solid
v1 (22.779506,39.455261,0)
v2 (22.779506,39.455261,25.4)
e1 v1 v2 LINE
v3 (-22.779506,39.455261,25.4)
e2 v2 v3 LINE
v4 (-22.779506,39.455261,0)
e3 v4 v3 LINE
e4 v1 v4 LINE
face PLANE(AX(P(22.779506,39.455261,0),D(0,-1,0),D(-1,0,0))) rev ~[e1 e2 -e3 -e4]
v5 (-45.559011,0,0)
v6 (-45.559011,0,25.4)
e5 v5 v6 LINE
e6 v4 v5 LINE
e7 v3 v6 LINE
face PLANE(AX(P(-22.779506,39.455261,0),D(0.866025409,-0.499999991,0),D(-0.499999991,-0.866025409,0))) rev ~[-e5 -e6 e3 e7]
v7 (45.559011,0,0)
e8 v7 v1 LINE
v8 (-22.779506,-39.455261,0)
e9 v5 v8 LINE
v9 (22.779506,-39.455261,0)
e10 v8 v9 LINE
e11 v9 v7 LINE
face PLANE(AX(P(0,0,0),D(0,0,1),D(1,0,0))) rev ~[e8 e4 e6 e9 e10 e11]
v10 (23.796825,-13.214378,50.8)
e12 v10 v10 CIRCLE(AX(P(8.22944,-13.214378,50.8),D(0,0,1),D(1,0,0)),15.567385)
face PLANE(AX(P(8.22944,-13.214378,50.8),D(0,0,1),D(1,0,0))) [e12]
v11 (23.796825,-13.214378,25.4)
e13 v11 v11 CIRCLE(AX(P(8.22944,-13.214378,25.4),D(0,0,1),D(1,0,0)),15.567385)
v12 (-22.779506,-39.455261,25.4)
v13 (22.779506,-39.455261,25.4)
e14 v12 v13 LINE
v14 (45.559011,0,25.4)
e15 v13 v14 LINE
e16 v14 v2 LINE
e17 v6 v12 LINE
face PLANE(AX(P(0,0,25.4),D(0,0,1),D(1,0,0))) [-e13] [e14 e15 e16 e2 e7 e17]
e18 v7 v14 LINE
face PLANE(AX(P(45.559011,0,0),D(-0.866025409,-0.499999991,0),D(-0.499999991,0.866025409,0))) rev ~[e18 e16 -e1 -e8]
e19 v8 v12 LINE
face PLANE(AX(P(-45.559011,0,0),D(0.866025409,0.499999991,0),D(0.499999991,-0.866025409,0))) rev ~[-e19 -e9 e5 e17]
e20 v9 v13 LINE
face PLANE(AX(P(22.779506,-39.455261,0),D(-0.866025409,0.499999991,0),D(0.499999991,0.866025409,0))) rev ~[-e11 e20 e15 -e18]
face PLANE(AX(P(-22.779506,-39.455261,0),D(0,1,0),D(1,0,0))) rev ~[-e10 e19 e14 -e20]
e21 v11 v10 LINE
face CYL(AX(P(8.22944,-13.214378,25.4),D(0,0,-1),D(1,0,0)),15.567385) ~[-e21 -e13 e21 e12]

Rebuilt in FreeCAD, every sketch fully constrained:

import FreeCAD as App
import Part
import Sketcher

V = App.Vector
Q = App.Units.Quantity

doc = App.newDocument("Part")
body = doc.addObject("PartDesign::Body", "Body")

# Sketch on XY plane
sketch1 = doc.addObject("Sketcher::SketchObject", "Sketch")
body.addObject(sketch1)
sketch1.AttachmentSupport = (doc.XY_Plane, [""])
sketch1.MapMode = "FlatFace"
sketch1.addGeometry(Part.LineSegment(V(23, 39, 0), V(-23, 39, 0)), False)
sketch1.addGeometry(Part.LineSegment(V(-23, 39, 0), V(-46, 0, 0)), False)
sketch1.addGeometry(Part.LineSegment(V(-46, 0, 0), V(-23, -39, 0)), False)
sketch1.addGeometry(Part.LineSegment(V(-23, -39, 0), V(23, -39, 0)), False)
sketch1.addGeometry(Part.LineSegment(V(23, -39, 0), V(46, 0, 0)), False)
sketch1.addGeometry(Part.LineSegment(V(46, 0, 0), V(23, 39, 0)), False)
sketch1.addConstraint(Sketcher.Constraint("Coincident", 0, 2, 1, 1))
sketch1.addConstraint(Sketcher.Constraint("Coincident", 1, 2, 2, 1))
sketch1.addConstraint(Sketcher.Constraint("Coincident", 2, 2, 3, 1))
sketch1.addConstraint(Sketcher.Constraint("Coincident", 3, 2, 4, 1))
sketch1.addConstraint(Sketcher.Constraint("Coincident", 4, 2, 5, 1))
sketch1.addConstraint(Sketcher.Constraint("Coincident", 5, 2, 0, 1))
sketch1.addConstraint(Sketcher.Constraint("Horizontal", 0))
sketch1.addConstraint(Sketcher.Constraint("Horizontal", 3))
sketch1.addConstraint(Sketcher.Constraint("Symmetric", 0, 2, 3, 2, -1, 1))
sketch1.addConstraint(Sketcher.Constraint("Symmetric", 1, 2, 4, 2, -1, 1))
sketch1.addConstraint(Sketcher.Constraint("PointOnObject", 1, 2, -1))
sketch1.addConstraint(Sketcher.Constraint("Parallel", 2, 5))
sketch1.addConstraint(Sketcher.Constraint("Vertical", 0, 2, 2, 2))
sketch1.addConstraint(Sketcher.Constraint("Angle", 1, Q("-119.999999 deg")))
sketch1.addConstraint(Sketcher.Constraint("Distance", 1, Q("45.559011 mm")))
sketch1.addConstraint(Sketcher.Constraint("DistanceX", 0, 2, 0, 1, Q("45.559012 mm")))
pad1 = doc.addObject("PartDesign::Pad", "Pad")
body.addObject(pad1)
pad1.Profile = sketch1
pad1.Length = Q("1 in")

# Sketch on XY plane
sketch2 = doc.addObject("Sketcher::SketchObject", "Sketch001")
body.addObject(sketch2)
sketch2.AttachmentSupport = (doc.XY_Plane, [""])
sketch2.MapMode = "FlatFace"
sketch2.AttachmentOffset = App.Placement(V(0, 0, 1 * 25.4), App.Rotation())
sketch2.addGeometry(Part.Circle(V(8, -13, 0), V(0, 0, 1), 16), False)
sketch2.addConstraint(Sketcher.Constraint("Diameter", 0, Q("31.13477 mm")))
sketch2.addConstraint(Sketcher.Constraint("DistanceX", -1, 1, 0, 3, Q("8.22944 mm")))
sketch2.addConstraint(Sketcher.Constraint("DistanceY", 0, 3, -1, 1, Q("13.214378 mm")))
pad2 = doc.addObject("PartDesign::Pad", "Pad001")
body.addObject(pad2)
pad2.Profile = sketch2
pad2.Length = Q("1 in")

doc.recompute()
